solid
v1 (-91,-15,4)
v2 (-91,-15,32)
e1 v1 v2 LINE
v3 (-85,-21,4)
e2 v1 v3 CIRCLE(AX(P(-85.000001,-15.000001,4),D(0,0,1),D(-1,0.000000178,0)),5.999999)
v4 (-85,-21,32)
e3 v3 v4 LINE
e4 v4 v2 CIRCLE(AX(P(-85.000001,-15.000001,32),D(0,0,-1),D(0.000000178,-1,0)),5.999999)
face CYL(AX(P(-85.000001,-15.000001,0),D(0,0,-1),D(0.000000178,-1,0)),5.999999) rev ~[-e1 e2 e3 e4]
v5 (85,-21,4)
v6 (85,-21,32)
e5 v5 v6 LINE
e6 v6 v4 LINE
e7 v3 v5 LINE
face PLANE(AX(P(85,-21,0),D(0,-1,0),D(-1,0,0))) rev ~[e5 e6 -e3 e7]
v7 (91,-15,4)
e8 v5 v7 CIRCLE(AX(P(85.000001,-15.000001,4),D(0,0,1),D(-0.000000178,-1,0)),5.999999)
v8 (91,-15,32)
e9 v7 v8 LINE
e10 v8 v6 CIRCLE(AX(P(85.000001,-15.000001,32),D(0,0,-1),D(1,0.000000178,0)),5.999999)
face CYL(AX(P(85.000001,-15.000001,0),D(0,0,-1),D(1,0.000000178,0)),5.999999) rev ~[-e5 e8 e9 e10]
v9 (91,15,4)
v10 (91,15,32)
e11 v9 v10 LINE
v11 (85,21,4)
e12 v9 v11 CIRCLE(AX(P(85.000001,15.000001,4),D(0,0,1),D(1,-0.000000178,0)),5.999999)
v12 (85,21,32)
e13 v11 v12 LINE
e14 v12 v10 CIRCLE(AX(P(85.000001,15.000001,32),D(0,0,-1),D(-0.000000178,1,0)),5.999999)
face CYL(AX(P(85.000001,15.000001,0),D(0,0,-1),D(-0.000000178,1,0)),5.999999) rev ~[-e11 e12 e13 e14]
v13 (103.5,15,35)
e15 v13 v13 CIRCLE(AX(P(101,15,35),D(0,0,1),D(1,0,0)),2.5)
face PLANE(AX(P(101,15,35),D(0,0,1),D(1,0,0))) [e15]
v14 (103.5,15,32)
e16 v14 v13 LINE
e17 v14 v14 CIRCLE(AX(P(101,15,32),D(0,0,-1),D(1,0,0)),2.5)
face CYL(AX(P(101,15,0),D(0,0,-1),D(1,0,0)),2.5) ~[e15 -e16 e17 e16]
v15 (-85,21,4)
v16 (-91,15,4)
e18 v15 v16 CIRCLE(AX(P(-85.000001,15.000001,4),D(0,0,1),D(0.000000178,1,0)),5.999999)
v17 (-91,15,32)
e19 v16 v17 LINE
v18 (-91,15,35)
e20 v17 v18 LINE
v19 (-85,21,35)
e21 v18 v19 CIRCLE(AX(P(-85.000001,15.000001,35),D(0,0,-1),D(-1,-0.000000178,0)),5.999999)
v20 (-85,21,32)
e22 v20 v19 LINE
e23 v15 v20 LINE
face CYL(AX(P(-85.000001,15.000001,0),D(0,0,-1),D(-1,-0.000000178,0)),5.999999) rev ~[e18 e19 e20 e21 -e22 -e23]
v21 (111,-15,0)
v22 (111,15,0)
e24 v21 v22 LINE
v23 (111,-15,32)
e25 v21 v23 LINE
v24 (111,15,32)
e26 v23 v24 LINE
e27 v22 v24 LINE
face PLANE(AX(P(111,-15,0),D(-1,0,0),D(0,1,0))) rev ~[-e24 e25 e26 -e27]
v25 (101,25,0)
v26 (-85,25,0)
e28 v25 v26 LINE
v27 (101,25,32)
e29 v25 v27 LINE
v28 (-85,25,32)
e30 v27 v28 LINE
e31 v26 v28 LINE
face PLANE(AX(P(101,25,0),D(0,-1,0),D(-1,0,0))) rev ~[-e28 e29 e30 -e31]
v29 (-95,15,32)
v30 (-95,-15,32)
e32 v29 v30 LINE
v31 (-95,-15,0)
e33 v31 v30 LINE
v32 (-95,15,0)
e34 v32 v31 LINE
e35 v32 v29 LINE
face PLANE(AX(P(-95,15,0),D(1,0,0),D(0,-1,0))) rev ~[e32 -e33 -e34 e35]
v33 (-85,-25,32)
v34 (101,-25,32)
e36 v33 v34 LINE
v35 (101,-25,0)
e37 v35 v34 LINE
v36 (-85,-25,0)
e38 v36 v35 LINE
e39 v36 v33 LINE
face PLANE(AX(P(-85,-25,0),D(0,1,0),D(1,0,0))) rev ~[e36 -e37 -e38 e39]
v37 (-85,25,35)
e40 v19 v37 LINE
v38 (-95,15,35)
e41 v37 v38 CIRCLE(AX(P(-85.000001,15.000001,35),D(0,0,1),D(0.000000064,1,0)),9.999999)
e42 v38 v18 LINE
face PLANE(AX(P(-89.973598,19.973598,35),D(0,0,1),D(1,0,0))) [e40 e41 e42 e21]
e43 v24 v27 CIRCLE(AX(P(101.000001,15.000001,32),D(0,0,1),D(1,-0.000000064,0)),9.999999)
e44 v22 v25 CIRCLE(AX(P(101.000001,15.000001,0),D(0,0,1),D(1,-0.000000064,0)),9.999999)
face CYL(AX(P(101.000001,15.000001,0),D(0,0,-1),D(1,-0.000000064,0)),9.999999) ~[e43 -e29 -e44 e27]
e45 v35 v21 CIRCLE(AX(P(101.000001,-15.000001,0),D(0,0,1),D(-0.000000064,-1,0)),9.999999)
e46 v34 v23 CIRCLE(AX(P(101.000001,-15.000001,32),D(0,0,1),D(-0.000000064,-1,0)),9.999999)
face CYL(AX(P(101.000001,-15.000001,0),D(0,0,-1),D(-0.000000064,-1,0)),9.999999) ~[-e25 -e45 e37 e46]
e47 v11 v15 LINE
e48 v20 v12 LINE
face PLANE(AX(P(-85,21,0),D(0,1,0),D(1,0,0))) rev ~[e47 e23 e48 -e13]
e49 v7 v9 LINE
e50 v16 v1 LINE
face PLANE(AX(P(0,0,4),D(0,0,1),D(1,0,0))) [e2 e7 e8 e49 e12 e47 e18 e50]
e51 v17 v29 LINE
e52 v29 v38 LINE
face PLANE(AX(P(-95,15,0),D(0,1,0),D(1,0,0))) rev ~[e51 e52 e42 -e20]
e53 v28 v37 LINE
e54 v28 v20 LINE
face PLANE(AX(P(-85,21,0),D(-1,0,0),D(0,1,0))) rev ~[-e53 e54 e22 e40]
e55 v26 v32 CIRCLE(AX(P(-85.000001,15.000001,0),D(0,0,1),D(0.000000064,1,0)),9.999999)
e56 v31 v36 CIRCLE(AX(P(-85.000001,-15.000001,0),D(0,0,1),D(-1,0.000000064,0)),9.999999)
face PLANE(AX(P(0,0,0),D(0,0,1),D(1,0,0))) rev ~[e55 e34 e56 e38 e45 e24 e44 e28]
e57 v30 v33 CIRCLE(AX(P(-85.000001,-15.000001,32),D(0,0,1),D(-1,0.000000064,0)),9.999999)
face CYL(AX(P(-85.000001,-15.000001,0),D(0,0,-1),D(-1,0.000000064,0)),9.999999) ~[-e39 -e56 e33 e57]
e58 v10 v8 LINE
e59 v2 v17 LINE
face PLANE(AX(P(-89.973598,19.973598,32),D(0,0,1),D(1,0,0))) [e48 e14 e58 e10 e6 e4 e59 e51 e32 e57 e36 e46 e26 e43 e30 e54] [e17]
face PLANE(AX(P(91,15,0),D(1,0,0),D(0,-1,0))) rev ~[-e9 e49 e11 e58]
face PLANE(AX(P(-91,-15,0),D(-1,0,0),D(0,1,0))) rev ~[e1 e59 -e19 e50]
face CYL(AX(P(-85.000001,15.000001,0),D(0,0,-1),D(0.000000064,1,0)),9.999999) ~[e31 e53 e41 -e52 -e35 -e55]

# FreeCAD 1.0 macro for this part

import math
import FreeCAD as App
import Part
import Sketcher
Q = App.Units.Quantity

doc = App.newDocument("Part")
body = doc.addObject("PartDesign::Body", "Body")

# Sketch on XY plane
sketch1 = body.newObject("Sketcher::SketchObject", "Sketch")
sketch1.AttachmentSupport = (doc.getObject("XY_Plane"), [""])
sketch1.MapMode = "FlatFace"
sketch1.addGeometry(Part.ArcOfCircle(Part.Circle(App.Vector(-85, 15, 0), App.Vector(0, 0, 1), 10), math.radians(90), math.radians(180)), False)
sketch1.addGeometry(Part.LineSegment(App.Vector(-95, 15, 0), App.Vector(-95, -15, 0)), False)
sketch1.addGeometry(Part.ArcOfCircle(Part.Circle(App.Vector(-85, -15, 0), App.Vector(0, 0, 1), 10), math.radians(180), math.radians(270)), False)
sketch1.addGeometry(Part.LineSegment(App.Vector(-85, -25, 0), App.Vector(101, -25, 0)), False)
sketch1.addGeometry(Part.ArcOfCircle(Part.Circle(App.Vector(101, -15, 0), App.Vector(0, 0, 1), 10), math.radians(-90), math.radians(0)), False)
sketch1.addGeometry(Part.LineSegment(App.Vector(111, -15, 0), App.Vector(111, 15, 0)), False)
sketch1.addGeometry(Part.ArcOfCircle(Part.Circle(App.Vector(101, 15, 0), App.Vector(0, 0, 1), 10), math.radians(0), math.radians(90)), False)
sketch1.addGeometry(Part.LineSegment(App.Vector(101, 25, 0), App.Vector(-85, 25, 0)), False)
sketch1.addGeometry(Part.ArcOfCircle(Part.Circle(App.Vector(-85, 15, 0), App.Vector(0, 0, 1), 6), math.radians(90), math.radians(180)), False)
sketch1.addGeometry(Part.LineSegment(App.Vector(-85, 21, 0), App.Vector(85, 21, 0)), False)
sketch1.addGeometry(Part.ArcOfCircle(Part.Circle(App.Vector(85, 15, 0), App.Vector(0, 0, 1), 6), math.radians(0), math.radians(90)), False)
sketch1.addGeometry(Part.LineSegment(App.Vector(91, 15, 0), App.Vector(91, -15, 0)), False)
sketch1.addGeometry(Part.ArcOfCircle(Part.Circle(App.Vector(85, -15, 0), App.Vector(0, 0, 1), 6), math.radians(-90), math.radians(0)), False)
sketch1.addGeometry(Part.LineSegment(App.Vector(85, -21, 0), App.Vector(-85, -21, 0)), False)
sketch1.addGeometry(Part.ArcOfCircle(Part.Circle(App.Vector(-85, -15, 0), App.Vector(0, 0, 1), 6), math.radians(180), math.radians(270)), False)
sketch1.addGeometry(Part.LineSegment(App.Vector(-91, -15, 0), App.Vector(-91, 15, 0)), False)
sketch1.addConstraint(Sketcher.Constraint("Tangent", 0, 2, 1, 1))
sketch1.addConstraint(Sketcher.Constraint("Tangent", 1, 2, 2, 1))
sketch1.addConstraint(Sketcher.Constraint("Tangent", 2, 2, 3, 1))
sketch1.addConstraint(Sketcher.Constraint("Tangent", 3, 2, 4, 1))
sketch1.addConstraint(Sketcher.Constraint("Tangent", 4, 2, 5, 1))
sketch1.addConstraint(Sketcher.Constraint("Tangent", 5, 2, 6, 1))
sketch1.addConstraint(Sketcher.Constraint("Tangent", 6, 2, 7, 1))
sketch1.addConstraint(Sketcher.Constraint("Tangent", 7, 2, 0, 1))
sketch1.addConstraint(Sketcher.Constraint("Tangent", 8, 1, 9, 1))
sketch1.addConstraint(Sketcher.Constraint("Tangent", 9, 2, 10, 2))
sketch1.addConstraint(Sketcher.Constraint("Tangent", 10, 1, 11, 1))
sketch1.addConstraint(Sketcher.Constraint("Tangent", 11, 2, 12, 2))
sketch1.addConstraint(Sketcher.Constraint("Tangent", 12, 1, 13, 1))
sketch1.addConstraint(Sketcher.Constraint("Tangent", 13, 2, 14, 2))
sketch1.addConstraint(Sketcher.Constraint("Tangent", 14, 1, 15, 1))
sketch1.addConstraint(Sketcher.Constraint("Tangent", 15, 2, 8, 2))
sketch1.addConstraint(Sketcher.Constraint("Vertical", 1))
sketch1.addConstraint(Sketcher.Constraint("Horizontal", 3))
sketch1.addConstraint(Sketcher.Constraint("Vertical", 5))
sketch1.addConstraint(Sketcher.Constraint("Horizontal", 7))
sketch1.addConstraint(Sketcher.Constraint("Horizontal", 9))
sketch1.addConstraint(Sketcher.Constraint("Vertical", 11))
sketch1.addConstraint(Sketcher.Constraint("Horizontal", 13))
sketch1.addConstraint(Sketcher.Constraint("Vertical", 15))
sketch1.addConstraint(Sketcher.Constraint("Coincident", 8, 3, 0, 3))
sketch1.addConstraint(Sketcher.Constraint("Coincident", 14, 3, 2, 3))
sketch1.addConstraint(Sketcher.Constraint("Equal", 0, 2))
sketch1.addConstraint(Sketcher.Constraint("Equal", 2, 4))
sketch1.addConstraint(Sketcher.Constraint("Equal", 4, 6))
sketch1.addConstraint(Sketcher.Constraint("Equal", 8, 10))
sketch1.addConstraint(Sketcher.Constraint("Equal", 10, 12))
sketch1.addConstraint(Sketcher.Constraint("Symmetric", 2, 3, 10, 3, -1, 1))
sketch1.addConstraint(Sketcher.Constraint("Radius", 0, Q("9.999999 mm")))
sketch1.addConstraint(Sketcher.Constraint("Radius", 8, Q("5.999999 mm")))
sketch1.addConstraint(Sketcher.Constraint("DistanceX", 3, 1, 3, 2, Q("186 mm")))
sketch1.addConstraint(Sketcher.Constraint("DistanceX", 9, 1, 9, 2, Q("170 mm")))
sketch1.addConstraint(Sketcher.Constraint("DistanceY", 1, 2, 1, 1, Q("30 mm")))
pad1 = body.newObject("PartDesign::Pad", "Pad")
pad1.Profile = sketch1
pad1.Length = 32

# Sketch on XY plane
sketch2 = body.newObject("Sketcher::SketchObject", "Sketch001")
sketch2.AttachmentSupport = (doc.getObject("XY_Plane"), [""])
sketch2.MapMode = "FlatFace"
sketch2.addGeometry(Part.LineSegment(App.Vector(-95, 15, 0), App.Vector(-91, 15, 0)), False)
sketch2.addGeometry(Part.ArcOfCircle(Part.Circle(App.Vector(-85, 15, 0), App.Vector(0, 0, 1), 6), math.radians(90), math.radians(180)), False)
sketch2.addGeometry(Part.LineSegment(App.Vector(-85, 21, 0), App.Vector(-85, 25, 0)), False)
sketch2.addGeometry(Part.ArcOfCircle(Part.Circle(App.Vector(-85, 15, 0), App.Vector(0, 0, 1), 10), math.radians(90), math.radians(180)), False)
sketch2.addGeometry(Part.Circle(App.Vector(101, 15, 0), App.Vector(0, 0, 1), 2.5), False)
sketch2.addConstraint(Sketcher.Constraint("Coincident", 0, 2, 1, 2))
sketch2.addConstraint(Sketcher.Constraint("Coincident", 1, 1, 2, 1))
sketch2.addConstraint(Sketcher.Constraint("Coincident", 2, 2, 3, 1))
sketch2.addConstraint(Sketcher.Constraint("Coincident", 3, 2, 0, 1))
sketch2.addConstraint(Sketcher.Constraint("Horizontal", 0))
sketch2.addConstraint(Sketcher.Constraint("Vertical", 2))
sketch2.addConstraint(Sketcher.Constraint("Coincident", 3, 3, 1, 3))
sketch2.addConstraint(Sketcher.Constraint("Horizontal", 3, 3, 4, 3))
sketch2.addConstraint(Sketcher.Constraint("Horizontal", 4, 3, 0, 2))
sketch2.addConstraint(Sketcher.Constraint("Vertical", 3, 3, 1, 1))
sketch2.addConstraint(Sketcher.Constraint("Diameter", 4, Q("5 mm")))
sketch2.addConstraint(Sketcher.Constraint("Radius", 1, Q("5.999999 mm")))
sketch2.addConstraint(Sketcher.Constraint("Radius", 3, Q("9.999999 mm")))
sketch2.addConstraint(Sketcher.Constraint("DistanceX", 1, 3, -1, 1, Q("85.000001 mm")))
sketch2.addConstraint(Sketcher.Constraint("DistanceY", -1, 1, 1, 3, Q("15.000001 mm")))
sketch2.addConstraint(Sketcher.Constraint("DistanceX", -1, 1, 4, 3, Q("101 mm")))
pad2 = body.newObject("PartDesign::Pad", "Pad001")
pad2.Profile = sketch2
pad2.Length = 35

# Sketch on XY plane
sketch3 = body.newObject("Sketcher::SketchObject", "Sketch002")
sketch3.AttachmentSupport = (doc.getObject("XY_Plane"), [""])
sketch3.MapMode = "FlatFace"
sketch3.addGeometry(Part.LineSegment(App.Vector(-85, -21, 0), App.Vector(85, -21, 0)), False)
sketch3.addGeometry(Part.ArcOfCircle(Part.Circle(App.Vector(85, -15, 0), App.Vector(0, 0, 1), 6), math.radians(-90), math.radians(0)), False)
sketch3.addGeometry(Part.LineSegment(App.Vector(91, -15, 0), App.Vector(91, 15, 0)), False)
sketch3.addGeometry(Part.ArcOfCircle(Part.Circle(App.Vector(85, 15, 0), App.Vector(0, 0, 1), 6), math.radians(0), math.radians(90)), False)
sketch3.addGeometry(Part.LineSegment(App.Vector(85, 21, 0), App.Vector(-85, 21, 0)), False)
sketch3.addGeometry(Part.ArcOfCircle(Part.Circle(App.Vector(-85, 15, 0), App.Vector(0, 0, 1), 6), math.radians(90), math.radians(180)), False)
sketch3.addGeometry(Part.LineSegment(App.Vector(-91, 15, 0), App.Vector(-91, -15, 0)), False)
sketch3.addGeometry(Part.ArcOfCircle(Part.Circle(App.Vector(-85, -15, 0), App.Vector(0, 0, 1), 6), math.radians(180), math.radians(270)), False)
sketch3.addConstraint(Sketcher.Constraint("Tangent", 0, 2, 1, 1))
sketch3.addConstraint(Sketcher.Constraint("Tangent", 1, 2, 2, 1))
sketch3.addConstraint(Sketcher.Constraint("Tangent", 2, 2, 3, 1))
sketch3.addConstraint(Sketcher.Constraint("Tangent", 3, 2, 4, 1))
sketch3.addConstraint(Sketcher.Constraint("Tangent", 4, 2, 5, 1))
sketch3.addConstraint(Sketcher.Constraint("Tangent", 5, 2, 6, 1))
sketch3.addConstraint(Sketcher.Constraint("Tangent", 6, 2, 7, 1))
sketch3.addConstraint(Sketcher.Constraint("Tangent", 7, 2, 0, 1))
sketch3.addConstraint(Sketcher.Constraint("Horizontal", 0))
sketch3.addConstraint(Sketcher.Constraint("Vertical", 2))
sketch3.addConstraint(Sketcher.Constraint("Horizontal", 4))
sketch3.addConstraint(Sketcher.Constraint("Vertical", 6))
sketch3.addConstraint(Sketcher.Constraint("Equal", 1, 3))
sketch3.addConstraint(Sketcher.Constraint("Equal", 3, 5))
sketch3.addConstraint(Sketcher.Constraint("Equal", 5, 7))
sketch3.addConstraint(Sketcher.Constraint("Symmetric", 1, 3, 5, 3, -1, 1))
sketch3.addConstraint(Sketcher.Constraint("Radius", 1, Q("5.999999 mm")))
sketch3.addConstraint(Sketcher.Constraint("DistanceX", 0, 1, 0, 2, Q("170 mm")))
sketch3.addConstraint(Sketcher.Constraint("DistanceY", 2, 1, 2, 2, Q("30 mm")))
pad3 = body.newObject("PartDesign::Pad", "Pad002")
pad3.Profile = sketch3
pad3.Length = 4

doc.recompute()
